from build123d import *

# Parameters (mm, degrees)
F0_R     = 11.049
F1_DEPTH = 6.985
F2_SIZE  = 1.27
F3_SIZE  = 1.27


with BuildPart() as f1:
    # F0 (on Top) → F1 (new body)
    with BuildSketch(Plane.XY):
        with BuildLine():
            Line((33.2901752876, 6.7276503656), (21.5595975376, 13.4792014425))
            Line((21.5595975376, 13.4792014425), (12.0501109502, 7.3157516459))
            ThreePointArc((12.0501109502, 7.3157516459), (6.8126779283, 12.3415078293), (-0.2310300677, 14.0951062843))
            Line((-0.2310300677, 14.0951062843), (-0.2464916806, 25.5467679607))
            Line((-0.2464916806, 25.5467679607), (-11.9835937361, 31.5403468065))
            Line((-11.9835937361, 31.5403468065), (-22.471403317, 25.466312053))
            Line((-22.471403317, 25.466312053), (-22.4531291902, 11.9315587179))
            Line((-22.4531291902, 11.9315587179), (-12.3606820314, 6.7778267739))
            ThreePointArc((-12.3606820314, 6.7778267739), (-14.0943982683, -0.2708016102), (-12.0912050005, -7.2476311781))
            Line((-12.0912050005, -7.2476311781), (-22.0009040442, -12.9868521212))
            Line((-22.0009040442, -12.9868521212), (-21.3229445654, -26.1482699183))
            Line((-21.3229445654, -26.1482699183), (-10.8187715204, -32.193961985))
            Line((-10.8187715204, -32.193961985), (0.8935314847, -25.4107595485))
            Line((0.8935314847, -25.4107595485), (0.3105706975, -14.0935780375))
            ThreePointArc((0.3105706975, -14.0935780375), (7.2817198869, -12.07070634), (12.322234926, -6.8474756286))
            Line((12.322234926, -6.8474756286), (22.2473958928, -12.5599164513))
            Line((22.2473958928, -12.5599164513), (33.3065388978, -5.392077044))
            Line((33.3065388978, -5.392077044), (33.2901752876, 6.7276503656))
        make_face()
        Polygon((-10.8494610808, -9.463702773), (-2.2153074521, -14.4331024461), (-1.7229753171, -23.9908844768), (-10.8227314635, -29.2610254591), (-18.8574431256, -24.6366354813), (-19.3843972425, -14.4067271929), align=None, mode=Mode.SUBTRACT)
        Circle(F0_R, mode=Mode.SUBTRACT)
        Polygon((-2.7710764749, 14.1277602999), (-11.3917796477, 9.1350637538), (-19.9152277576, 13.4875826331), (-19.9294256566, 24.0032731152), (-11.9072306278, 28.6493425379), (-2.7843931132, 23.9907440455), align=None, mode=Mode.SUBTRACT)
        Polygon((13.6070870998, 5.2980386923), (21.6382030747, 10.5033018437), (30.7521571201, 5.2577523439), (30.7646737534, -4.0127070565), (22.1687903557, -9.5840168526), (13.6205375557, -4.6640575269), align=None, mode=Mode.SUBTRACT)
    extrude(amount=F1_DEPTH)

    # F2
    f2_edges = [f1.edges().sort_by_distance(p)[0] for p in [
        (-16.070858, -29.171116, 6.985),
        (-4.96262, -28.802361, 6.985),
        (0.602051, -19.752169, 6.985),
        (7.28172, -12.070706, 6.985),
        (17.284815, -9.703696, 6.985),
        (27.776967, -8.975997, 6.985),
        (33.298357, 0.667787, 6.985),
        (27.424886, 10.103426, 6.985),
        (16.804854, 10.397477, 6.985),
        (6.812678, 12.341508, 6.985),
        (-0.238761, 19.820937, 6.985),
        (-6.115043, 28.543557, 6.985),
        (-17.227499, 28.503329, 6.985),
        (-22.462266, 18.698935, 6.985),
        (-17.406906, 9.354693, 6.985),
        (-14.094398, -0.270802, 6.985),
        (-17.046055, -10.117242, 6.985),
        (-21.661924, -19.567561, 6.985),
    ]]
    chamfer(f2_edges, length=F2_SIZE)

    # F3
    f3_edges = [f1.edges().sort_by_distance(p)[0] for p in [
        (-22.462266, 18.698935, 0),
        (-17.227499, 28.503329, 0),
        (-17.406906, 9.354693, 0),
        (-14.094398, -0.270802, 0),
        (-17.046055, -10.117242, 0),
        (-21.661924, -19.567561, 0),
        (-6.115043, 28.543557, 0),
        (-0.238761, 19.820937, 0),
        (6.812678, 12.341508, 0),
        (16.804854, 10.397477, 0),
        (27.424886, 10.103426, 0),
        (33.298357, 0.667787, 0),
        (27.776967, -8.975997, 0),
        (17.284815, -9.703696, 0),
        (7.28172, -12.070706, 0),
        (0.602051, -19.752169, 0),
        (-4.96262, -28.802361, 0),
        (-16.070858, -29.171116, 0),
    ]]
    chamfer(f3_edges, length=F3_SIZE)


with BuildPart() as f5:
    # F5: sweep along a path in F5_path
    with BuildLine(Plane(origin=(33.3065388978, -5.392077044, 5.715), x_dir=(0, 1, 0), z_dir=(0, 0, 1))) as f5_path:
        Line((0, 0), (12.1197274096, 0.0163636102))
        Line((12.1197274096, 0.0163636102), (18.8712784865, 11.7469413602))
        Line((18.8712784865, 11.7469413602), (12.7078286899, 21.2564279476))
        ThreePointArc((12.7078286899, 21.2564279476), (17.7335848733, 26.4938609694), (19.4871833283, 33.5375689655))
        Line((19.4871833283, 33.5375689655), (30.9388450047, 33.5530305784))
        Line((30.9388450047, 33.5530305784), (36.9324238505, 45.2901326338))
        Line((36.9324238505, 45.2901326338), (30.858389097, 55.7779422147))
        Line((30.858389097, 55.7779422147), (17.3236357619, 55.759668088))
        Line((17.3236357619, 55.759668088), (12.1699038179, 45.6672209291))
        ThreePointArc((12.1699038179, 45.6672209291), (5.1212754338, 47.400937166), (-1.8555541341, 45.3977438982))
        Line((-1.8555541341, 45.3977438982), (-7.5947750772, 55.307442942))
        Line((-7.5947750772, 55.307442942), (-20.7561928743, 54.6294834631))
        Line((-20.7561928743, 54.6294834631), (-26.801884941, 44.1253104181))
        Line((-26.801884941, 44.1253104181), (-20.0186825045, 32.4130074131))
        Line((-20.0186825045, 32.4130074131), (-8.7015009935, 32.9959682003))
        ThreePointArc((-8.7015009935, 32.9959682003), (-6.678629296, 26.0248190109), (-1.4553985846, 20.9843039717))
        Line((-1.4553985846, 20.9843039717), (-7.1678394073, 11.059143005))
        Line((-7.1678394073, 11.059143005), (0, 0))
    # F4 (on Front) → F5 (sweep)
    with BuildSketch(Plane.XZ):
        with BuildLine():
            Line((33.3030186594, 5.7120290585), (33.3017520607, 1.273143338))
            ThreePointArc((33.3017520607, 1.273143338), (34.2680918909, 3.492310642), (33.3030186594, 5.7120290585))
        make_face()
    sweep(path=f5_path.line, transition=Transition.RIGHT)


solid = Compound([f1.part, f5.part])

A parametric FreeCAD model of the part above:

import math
import FreeCAD as App
import Part
import Sketcher
Q = App.Units.Quantity


def edges_at(feature, points):
    """Names of the edges that pass closest to the given points."""
    edges = feature.Shape.Edges
    near = lambda p: min(range(len(edges)), key=lambda i: edges[i].distToShape(Part.Vertex(*p))[0])
    return sorted({f"Edge{near(p) + 1}" for p in points})


def add_polygon(sketch, points):
    """Adds a closed chain of lines whose ends are joined by coincident constraints."""
    first, n = sketch.GeometryCount, len(points)
    for a, b in zip(points, points[1:] + points[:1]):
        sketch.addGeometry(Part.LineSegment(App.Vector(*a, 0), App.Vector(*b, 0)), False)
    for i in range(n):
        sketch.addConstraint(Sketcher.Constraint("Coincident", first + i, 2, first + (i + 1) % n, 1))

doc = App.newDocument("Part")
params = doc.addObject("Spreadsheet::Sheet", "Params")
for row, (alias, value) in enumerate([
    ("sketch1_diameter", "0.87 in"),
    ("sketch1_radius", "0.555 in"),
    ("pad1_length", "0.275 in"),
    ("chamfer_size", "0.05 in"),
    ("chamfer2_size", "0.05 in"),
    ("sketch3_radius", "0.555 in"),
], start=1):
    params.set(f"A{row}", alias)
    params.set(f"B{row}", "=" + value)
    params.setAlias(f"B{row}", alias)

body = doc.addObject("PartDesign::Body", "Body")

sketch1 = body.newObject("Sketcher::SketchObject", "Sketch")
sketch1.AttachmentSupport = (doc.getObject("XY_Plane"), [""])
sketch1.MapMode = "FlatFace"
sketch1.addGeometry(Part.LineSegment(App.Vector(33.290175, 6.72765, 0), App.Vector(21.559598, 13.479201, 0)), False)
sketch1.addGeometry(Part.LineSegment(App.Vector(21.559598, 13.479201, 0), App.Vector(12.050111, 7.315752, 0)), False)
sketch1.addGeometry(Part.ArcOfCircle(Part.Circle(App.Vector(0, 0, 0), App.Vector(0, 0, 1), 14.097), math.radians(31.262387), math.radians(90.93904)), False)
sketch1.addGeometry(Part.LineSegment(App.Vector(-0.23103, 14.095106, 0), App.Vector(-0.246492, 25.546768, 0)), False)
sketch1.addGeometry(Part.LineSegment(App.Vector(-0.246492, 25.546768, 0), App.Vector(-11.983594, 31.540347, 0)), False)
sketch1.addGeometry(Part.LineSegment(App.Vector(-11.983594, 31.540347, 0), App.Vector(-22.471403, 25.466312, 0)), False)
sketch1.addGeometry(Part.LineSegment(App.Vector(-22.471403, 25.466312, 0), App.Vector(-22.453129, 11.931559, 0)), False)
sketch1.addGeometry(Part.LineSegment(App.Vector(-22.453129, 11.931559, 0), App.Vector(-12.360682, 6.777827, 0)), False)
sketch1.addGeometry(Part.ArcOfCircle(Part.Circle(App.Vector(0, 0, 0), App.Vector(0, 0, 1), 14.097), math.radians(151.262385), math.radians(210.93904)), False)
sketch1.addGeometry(Part.LineSegment(App.Vector(-12.091205, -7.247631, 0), App.Vector(-22.000904, -12.986852, 0)), False)
sketch1.addGeometry(Part.LineSegment(App.Vector(-22.000904, -12.986852, 0), App.Vector(-21.322945, -26.14827, 0)), False)
sketch1.addGeometry(Part.LineSegment(App.Vector(-21.322945, -26.14827, 0), App.Vector(-10.818772, -32.193962, 0)), False)
sketch1.addGeometry(Part.LineSegment(App.Vector(-10.818772, -32.193962, 0), App.Vector(0.893531, -25.41076, 0)), False)
sketch1.addGeometry(Part.LineSegment(App.Vector(0.893531, -25.41076, 0), App.Vector(0.310571, -14.093578, 0)), False)
sketch1.addGeometry(Part.ArcOfCircle(Part.Circle(App.Vector(0, 0, 0), App.Vector(0, 0, 1), 14.097), math.radians(-88.737616), math.radians(-29.060962)), False)
sketch1.addGeometry(Part.LineSegment(App.Vector(12.322235, -6.847476, 0), App.Vector(22.247396, -12.559916, 0)), False)
sketch1.addGeometry(Part.LineSegment(App.Vector(22.247396, -12.559916, 0), App.Vector(33.306539, -5.392077, 0)), False)
sketch1.addGeometry(Part.LineSegment(App.Vector(33.306539, -5.392077, 0), App.Vector(33.290175, 6.72765, 0)), False)
add_polygon(sketch1, [(-19.384397, -14.406727), (-10.849461, -9.463703), (-2.215307, -14.433102), (-1.722975, -23.990884), (-10.822731, -29.261025), (-18.857443, -24.636635)])
sketch1.addGeometry(Part.Circle(App.Vector(0, 0, 0), App.Vector(0, 0, 1), 11.049), False)
add_polygon(sketch1, [(-2.784393, 23.990744), (-2.771076, 14.12776), (-11.39178, 9.135064), (-19.915228, 13.487583), (-19.929426, 24.003273), (-11.907231, 28.649343)])
add_polygon(sketch1, [(13.620538, -4.664058), (13.607087, 5.298039), (21.638203, 10.503302), (30.752157, 5.257752), (30.764674, -4.012707), (22.16879, -9.584017)])
sketch1.addConstraint([
    Sketcher.Constraint("Coincident", 0, 2, 1, 1),
    Sketcher.Constraint("Coincident", 1, 2, 2, 1),
    Sketcher.Constraint("Coincident", 2, 2, 3, 1),
    Sketcher.Constraint("Coincident", 3, 2, 4, 1),
    Sketcher.Constraint("Coincident", 4, 2, 5, 1),
    Sketcher.Constraint("Coincident", 5, 2, 6, 1),
    Sketcher.Constraint("Coincident", 6, 2, 7, 1),
    Sketcher.Constraint("Coincident", 7, 2, 8, 1),
    Sketcher.Constraint("Coincident", 8, 2, 9, 1),
    Sketcher.Constraint("Coincident", 9, 2, 10, 1),
    Sketcher.Constraint("Coincident", 10, 2, 11, 1),
    Sketcher.Constraint("Coincident", 11, 2, 12, 1),
    Sketcher.Constraint("Coincident", 12, 2, 13, 1),
    Sketcher.Constraint("Coincident", 13, 2, 14, 1),
    Sketcher.Constraint("Coincident", 14, 2, 15, 1),
    Sketcher.Constraint("Coincident", 15, 2, 16, 1),
    Sketcher.Constraint("Coincident", 16, 2, 17, 1),
    Sketcher.Constraint("Coincident", 17, 2, 0, 1),
    Sketcher.Constraint("Coincident", 2, 3, -1, 1),
    Sketcher.Constraint("Coincident", 8, 3, -1, 1),
    Sketcher.Constraint("Coincident", 14, 3, -1, 1),
    Sketcher.Constraint("Coincident", 24, 3, -1, 1),
    Sketcher.Constraint("Equal", 2, 8),
    Sketcher.Constraint("Equal", 8, 14),
    Sketcher.Constraint("Parallel", 3, 6),
    Sketcher.Constraint("Parallel", 4, 7),
    Sketcher.Constraint("Parallel", 5, 9),
    Sketcher.Constraint("Parallel", 0, 11),
    Sketcher.Constraint("Parallel", 9, 12),
    Sketcher.Constraint("Parallel", 10, 13),
    Sketcher.Constraint("Parallel", 11, 15),
    Sketcher.Constraint("Parallel", 1, 16),
    Sketcher.Constraint("Parallel", 6, 17),
    Sketcher.Constraint("Parallel", 12, 18),
    Sketcher.Constraint("Parallel", 15, 19),
    Sketcher.Constraint("Parallel", 13, 20),
    Sketcher.Constraint("Parallel", 18, 21),
    Sketcher.Constraint("Parallel", 19, 22),
    Sketcher.Constraint("Parallel", 20, 23),
    Sketcher.Constraint("Parallel", 17, 25),
    Sketcher.Constraint("Parallel", 21, 26),
    Sketcher.Constraint("Parallel", 7, 27),
    Sketcher.Constraint("Parallel", 25, 28),
    Sketcher.Constraint("Parallel", 26, 29),
    Sketcher.Constraint("Parallel", 27, 30),
    Sketcher.Constraint("Parallel", 28, 31),
    Sketcher.Constraint("Parallel", 16, 32),
    Sketcher.Constraint("Parallel", 22, 33),
    Sketcher.Constraint("Parallel", 31, 34),
    Sketcher.Constraint("Parallel", 32, 35),
    Sketcher.Constraint("Parallel", 33, 36),
    Sketcher.Constraint("Equal", 0, 6),
    Sketcher.Constraint("Equal", 1, 7),
    Sketcher.Constraint("Equal", 3, 9),
    Sketcher.Constraint("Equal", 4, 10),
    Sketcher.Constraint("Equal", 5, 11),
    Sketcher.Constraint("Equal", 6, 12),
    Sketcher.Constraint("Equal", 7, 13),
    Sketcher.Constraint("Equal", 9, 15),
    Sketcher.Constraint("Equal", 10, 16),
    Sketcher.Constraint("Equal", 11, 17),
    Sketcher.Constraint("Equal", 18, 25),
    Sketcher.Constraint("Equal", 19, 26),
    Sketcher.Constraint("Equal", 20, 27),
    Sketcher.Constraint("Equal", 21, 28),
    Sketcher.Constraint("Equal", 22, 29),
    Sketcher.Constraint("Equal", 23, 30),
    Sketcher.Constraint("Equal", 26, 31),
    Sketcher.Constraint("Equal", 27, 32),
    Sketcher.Constraint("Equal", 28, 33),
    Sketcher.Constraint("Equal", 29, 34),
    Sketcher.Constraint("Equal", 30, 35),
    Sketcher.Constraint("Equal", 25, 36),
    Sketcher.Constraint("Diameter", 24, Q("0.87 in")),
    Sketcher.Constraint("Radius", 2, Q("0.555 in")),
    Sketcher.Constraint("DistanceX", 13, 2, 14, 2, Q("0.4729002 in")),
    Sketcher.Constraint("DistanceY", 28, 2, 5, 2, Q("0.0576 in")),
    Sketcher.Constraint("Distance", 21, 10.5157),
    Sketcher.Constraint("DistanceY", -1, 1, 0, 2, 13.479201),
    Sketcher.Constraint("DistanceY", -1, 1, 32, 2, 10.503302),
    Sketcher.Constraint("DistanceX", 6, 2, 2, 2, 22.222099),
    Sketcher.Constraint("DistanceX", 9, 2, 8, 2, 9.909699),
    Sketcher.Constraint("DistanceY", 14, 2, 16, 2, 1.455399),
    Sketcher.Constraint("DistanceY", 17, 2, 1, 2, 0.588101),
    Sketcher.Constraint("DistanceY", 19, 2, 18, 2, 4.9694),
    Sketcher.Constraint("DistanceX", 10, 2, 22, 2, 2.465501),
    Sketcher.Constraint("DistanceX", 6, 2, 27, 2, 2.537901),
    Sketcher.Constraint("DistanceX", 30, 2, 3, 2, 2.537901),
    Sketcher.Constraint("DistanceY", 30, 2, 29, 2, 4.658598),
    Sketcher.Constraint("DistanceX", 4, 2, 30, 2, 9.199201),
    Sketcher.Constraint("DistanceX", 34, 2, 17, 2, 2.525502),
    Sketcher.Constraint("DistanceY", 18, 2, 8, 2, 2.216072),
])
sketch1.setExpression("Constraints[91]", "Params.sketch1_diameter")
sketch1.setExpression("Constraints[92]", "Params.sketch1_radius")
pad1 = body.newObject("PartDesign::Pad", "Pad")
pad1.Profile = sketch1
pad1.setExpression("Length", "Params.pad1_length")
doc.recompute()

chamfer = body.newObject("PartDesign::Chamfer", "Chamfer")
chamfer.Base = (pad1, edges_at(pad1, [
    (-16.071, -29.171, 6.985),
    (-4.963, -28.802, 6.985),
    (0.602, -19.752, 6.985),
    (7.282, -12.071, 6.985),
    (17.285, -9.704, 6.985),
    (27.777, -8.976, 6.985),
    (33.298, 0.668, 6.985),
    (27.425, 10.103, 6.985),
    (16.805, 10.397, 6.985),
    (6.813, 12.342, 6.985),
    (-0.239, 19.821, 6.985),
    (-6.115, 28.544, 6.985),
    (-17.227, 28.503, 6.985),
    (-22.462, 18.699, 6.985),
    (-17.407, 9.355, 6.985),
    (-14.094, -0.271, 6.985),
    (-17.046, -10.117, 6.985),
    (-21.662, -19.568, 6.985),
]))
chamfer.setExpression("Size", "Params.chamfer_size")
doc.recompute()

chamfer2 = body.newObject("PartDesign::Chamfer", "Chamfer001")
chamfer2.Base = (chamfer, edges_at(chamfer, [
    (-22.462, 18.699, 0),
    (-17.227, 28.503, 0),
    (-17.407, 9.355, 0),
    (-14.094, -0.271, 0),
    (-17.046, -10.117, 0),
    (-21.662, -19.568, 0),
    (-6.115, 28.544, 0),
    (-0.239, 19.821, 0),
    (6.813, 12.342, 0),
    (16.805, 10.397, 0),
    (27.425, 10.103, 0),
    (33.298, 0.668, 0),
    (27.777, -8.976, 0),
    (17.285, -9.704, 0),
    (7.282, -12.071, 0),
    (0.602, -19.752, 0),
    (-4.963, -28.802, 0),
    (-16.071, -29.171, 0),
]))
chamfer2.setExpression("Size", "Params.chamfer2_size")
body2 = doc.addObject("PartDesign::Body", "Body001")

sketch2 = body2.newObject("Sketcher::SketchObject", "Sketch001")
sketch2.AttachmentSupport = (doc.getObject("XZ_Plane001"), [""])
sketch2.MapMode = "FlatFace"
sketch2.addGeometry([
    Part.LineSegment(App.Vector(33.303019, 5.712029, 0), App.Vector(33.301752, 1.273143, 0)),
    Part.ArcOfCircle(Part.Circle(App.Vector(31.234812, 3.493176, 0), App.Vector(0, 0, 1), 3.03328), math.radians(-47.045234), math.radians(47.012537)),
], False)
sketch2.addConstraint([
    Sketcher.Constraint("Coincident", 0, 1, 1, 2),
    Sketcher.Constraint("Coincident", 1, 1, 0, 2),
    Sketcher.Constraint("Radius", 1, 3.03328),
    Sketcher.Constraint("DistanceX", -1, 1, 0, 1, 33.303019),
    Sketcher.Constraint("DistanceY", -1, 1, 0, 1, 5.712029),
    Sketcher.Constraint("DistanceX", 1, 3, 1, 1, 2.06694),
    Sketcher.Constraint("Distance", 0, 4.438886),
])

sketch3 = body2.newObject("Sketcher::SketchObject", "Sketch002")
sketch3.AttachmentSupport = (doc.getObject("XY_Plane001"), [""])
sketch3.MapMode = "FlatFace"
sketch3.AttachmentOffset = App.Placement(App.Vector(0, 0, 0.225 * 25.4), App.Rotation())
sketch3.addGeometry([
    Part.LineSegment(App.Vector(33.306539, -5.392077, 0), App.Vector(33.290175, 6.72765, 0)),
    Part.LineSegment(App.Vector(33.290175, 6.72765, 0), App.Vector(21.559598, 13.479201, 0)),
    Part.LineSegment(App.Vector(21.559598, 13.479201, 0), App.Vector(12.050111, 7.315752, 0)),
    Part.ArcOfCircle(Part.Circle(App.Vector(0, 0, 0), App.Vector(0, 0, 1), 14.097), math.radians(31.262387), math.radians(90.93904)),
    Part.LineSegment(App.Vector(-0.23103, 14.095106, 0), App.Vector(-0.246492, 25.546768, 0)),
    Part.LineSegment(App.Vector(-0.246492, 25.546768, 0), App.Vector(-11.983594, 31.540347, 0)),
    Part.LineSegment(App.Vector(-11.983594, 31.540347, 0), App.Vector(-22.471403, 25.466312, 0)),
    Part.LineSegment(App.Vector(-22.471403, 25.466312, 0), App.Vector(-22.453129, 11.931559, 0)),
    Part.LineSegment(App.Vector(-22.453129, 11.931559, 0), App.Vector(-12.360682, 6.777827, 0)),
    Part.ArcOfCircle(Part.Circle(App.Vector(0, 0, 0), App.Vector(0, 0, 1), 14.097), math.radians(151.262385), math.radians(210.93904)),
    Part.LineSegment(App.Vector(-12.091205, -7.247631, 0), App.Vector(-22.000904, -12.986852, 0)),
    Part.LineSegment(App.Vector(-22.000904, -12.986852, 0), App.Vector(-21.322945, -26.14827, 0)),
    Part.LineSegment(App.Vector(-21.322945, -26.14827, 0), App.Vector(-10.818772, -32.193962, 0)),
    Part.LineSegment(App.Vector(-10.818772, -32.193962, 0), App.Vector(0.893531, -25.41076, 0)),
    Part.LineSegment(App.Vector(0.893531, -25.41076, 0), App.Vector(0.310571, -14.093578, 0)),
    Part.ArcOfCircle(Part.Circle(App.Vector(0, 0, 0), App.Vector(0, 0, 1), 14.097), math.radians(-88.737616), math.radians(-29.060962)),
    Part.LineSegment(App.Vector(12.322235, -6.847476, 0), App.Vector(22.247396, -12.559916, 0)),
    Part.LineSegment(App.Vector(22.247396, -12.559916, 0), App.Vector(33.306539, -5.392077, 0)),
], False)
sketch3.addConstraint([
    Sketcher.Constraint("Coincident", 0, 2, 1, 1),
    Sketcher.Constraint("Coincident", 1, 2, 2, 1),
    Sketcher.Constraint("Coincident", 2, 2, 3, 1),
    Sketcher.Constraint("Coincident", 3, 2, 4, 1),
    Sketcher.Constraint("Coincident", 4, 2, 5, 1),
    Sketcher.Constraint("Coincident", 5, 2, 6, 1),
    Sketcher.Constraint("Coincident", 6, 2, 7, 1),
    Sketcher.Constraint("Coincident", 7, 2, 8, 1),
    Sketcher.Constraint("Coincident", 8, 2, 9, 1),
    Sketcher.Constraint("Coincident", 9, 2, 10, 1),
    Sketcher.Constraint("Coincident", 10, 2, 11, 1),
    Sketcher.Constraint("Coincident", 11, 2, 12, 1),
    Sketcher.Constraint("Coincident", 12, 2, 13, 1),
    Sketcher.Constraint("Coincident", 13, 2, 14, 1),
    Sketcher.Constraint("Coincident", 14, 2, 15, 1),
    Sketcher.Constraint("Coincident", 15, 2, 16, 1),
    Sketcher.Constraint("Coincident", 16, 2, 17, 1),
    Sketcher.Constraint("Coincident", 17, 2, 0, 1),
    Sketcher.Constraint("Coincident", 3, 3, -1, 1),
    Sketcher.Constraint("Coincident", 9, 3, -1, 1),
    Sketcher.Constraint("Coincident", 15, 3, -1, 1),
    Sketcher.Constraint("Equal", 3, 9),
    Sketcher.Constraint("Equal", 9, 15),
    Sketcher.Constraint("Parallel", 0, 4),
    Sketcher.Constraint("Parallel", 4, 7),
    Sketcher.Constraint("Parallel", 5, 8),
    Sketcher.Constraint("Parallel", 6, 10),
    Sketcher.Constraint("Parallel", 1, 12),
    Sketcher.Constraint("Parallel", 10, 13),
    Sketcher.Constraint("Parallel", 11, 14),
    Sketcher.Constraint("Parallel", 12, 16),
    Sketcher.Constraint("Parallel", 2, 17),
    Sketcher.Constraint("Equal", 0, 6),
    Sketcher.Constraint("Equal", 1, 7),
    Sketcher.Constraint("Equal", 2, 8),
    Sketcher.Constraint("Equal", 4, 10),
    Sketcher.Constraint("Equal", 5, 11),
    Sketcher.Constraint("Equal", 6, 12),
    Sketcher.Constraint("Equal", 7, 13),
    Sketcher.Constraint("Equal", 8, 14),
    Sketcher.Constraint("Equal", 10, 16),
    Sketcher.Constraint("Equal", 11, 17),
    Sketcher.Constraint("Radius", 3, Q("0.555 in")),
    Sketcher.Constraint("DistanceX", 14, 2, 15, 2, Q("0.4729002 in")),
    Sketcher.Constraint("DistanceY", -1, 1, 1, 2, 13.479201),
    Sketcher.Constraint("DistanceY", 0, 2, 2, 2, 0.588101),
    Sketcher.Constraint("DistanceX", 7, 2, 3, 2, 22.222099),
    Sketcher.Constraint("DistanceX", 10, 2, 9, 2, 9.909699),
    Sketcher.Constraint("DistanceY", 15, 2, 17, 2, 1.455399),
    Sketcher.Constraint("Distance", 0, 12.119738),
    Sketcher.Constraint("Distance", 17, 13.178868),
    Sketcher.Constraint("DistanceY", -1, 1, 0, 2, 6.72765),
    Sketcher.Constraint("DistanceX", 3, 2, -1, 1, 0.23103),
    Sketcher.Constraint("DistanceX", 4, 2, -1, 1, 0.246492),
])
sketch3.setExpression("Constraints[42]", "Params.sketch3_radius")
doc.recompute()

additivepipe = body2.newObject("PartDesign::AdditivePipe", "AdditivePipe")
additivepipe.Profile = sketch2
additivepipe.Spine = (sketch3, ["Edge1", "Edge2", "Edge3", "Edge4", "Edge5", "Edge6", "Edge7", "Edge8", "Edge9", "Edge10", "Edge11", "Edge12", "Edge13", "Edge14", "Edge15", "Edge16", "Edge17", "Edge18"])
additivepipe.Transition = "Right corner"

doc.recompute()
